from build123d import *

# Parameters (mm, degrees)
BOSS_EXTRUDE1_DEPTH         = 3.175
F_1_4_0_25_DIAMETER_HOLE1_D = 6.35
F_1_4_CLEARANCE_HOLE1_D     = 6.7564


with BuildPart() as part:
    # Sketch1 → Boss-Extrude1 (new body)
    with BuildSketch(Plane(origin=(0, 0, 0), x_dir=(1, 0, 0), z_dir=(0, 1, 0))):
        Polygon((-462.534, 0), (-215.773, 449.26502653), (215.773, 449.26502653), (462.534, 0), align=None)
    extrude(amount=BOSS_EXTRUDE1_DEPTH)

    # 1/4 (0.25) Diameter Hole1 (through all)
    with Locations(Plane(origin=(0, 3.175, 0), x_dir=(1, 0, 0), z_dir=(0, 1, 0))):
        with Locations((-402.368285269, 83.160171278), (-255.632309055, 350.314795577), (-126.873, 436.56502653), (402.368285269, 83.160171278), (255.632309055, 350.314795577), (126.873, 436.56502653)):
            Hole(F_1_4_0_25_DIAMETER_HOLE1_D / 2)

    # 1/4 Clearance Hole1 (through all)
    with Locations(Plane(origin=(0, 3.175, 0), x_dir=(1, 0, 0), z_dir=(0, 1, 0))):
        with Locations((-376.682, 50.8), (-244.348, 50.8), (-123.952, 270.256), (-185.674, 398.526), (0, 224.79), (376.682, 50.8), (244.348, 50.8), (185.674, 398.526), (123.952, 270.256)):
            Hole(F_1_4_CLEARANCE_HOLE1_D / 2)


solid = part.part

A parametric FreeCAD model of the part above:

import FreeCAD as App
import Part
import Sketcher
Q = App.Units.Quantity


def add_polygon(sketch, points):
    """Adds a closed chain of lines whose ends are joined by coincident constraints."""
    first, n = sketch.GeometryCount, len(points)
    for a, b in zip(points, points[1:] + points[:1]):
        sketch.addGeometry(Part.LineSegment(App.Vector(*a, 0), App.Vector(*b, 0)), False)
    for i in range(n):
        sketch.addConstraint(Sketcher.Constraint("Coincident", first + i, 2, first + (i + 1) % n, 1))

doc = App.newDocument("Part")
params = doc.addObject("Spreadsheet::Sheet", "Params")
for row, (alias, value) in enumerate([
    ("sketch1_width", "36.42 in"),
    ("sketch1_width2", "16.99 in"),
    ("sketch1_length", "20.18 in"),
    ("pad1_length", "0.125 in"),
    ("sketch2_diameter", "0.25 in"),
    ("hole_diameter", "0.25 in"),
    ("sketch3_diameter", "0.266 in"),
    ("hole2_diameter", "0.266 in"),
], start=1):
    params.set(f"A{row}", alias)
    params.set(f"B{row}", "=" + value)
    params.setAlias(f"B{row}", alias)

body = doc.addObject("PartDesign::Body", "Body")

sketch1 = body.newObject("Sketcher::SketchObject", "Sketch")
sketch1.AttachmentSupport = (doc.getObject("XZ_Plane"), [""])
sketch1.MapMode = "FlatFace"
add_polygon(sketch1, [(-215.773, -449.265027), (-462.534, 0), (462.534, 0), (215.773, -449.265027)])
sketch1.addConstraint([
    Sketcher.Constraint("Horizontal", 1),
    Sketcher.Constraint("Horizontal", 3),
    Sketcher.Constraint("Symmetric", 0, 2, 1, 2, -1, 1),
    Sketcher.Constraint("Equal", 0, 2),
    Sketcher.Constraint("DistanceX", 1, 1, 1, 2, Q("36.42 in")),
    Sketcher.Constraint("DistanceX", 3, 2, 3, 1, Q("16.99 in")),
    Sketcher.Constraint("Distance", 0, Q("20.18 in")),
])
sketch1.setExpression("Constraints[8]", "Params.sketch1_width")
sketch1.setExpression("Constraints[9]", "Params.sketch1_width2")
sketch1.setExpression("Constraints[10]", "Params.sketch1_length")
pad1 = body.newObject("PartDesign::Pad", "Pad")
pad1.Profile = sketch1
pad1.setExpression("Length", "Params.pad1_length")
pad1.Reversed = True

sketch2 = body.newObject("Sketcher::SketchObject", "Sketch001")
sketch2.AttachmentSupport = (doc.getObject("XZ_Plane"), [""])
sketch2.MapMode = "FlatFace"
sketch2.AttachmentOffset = App.Placement(App.Vector(0, 0, -0.125 * 25.4), App.Rotation())
sketch2.addGeometry([
    Part.Circle(App.Vector(-402.368285, -83.160171, 0), App.Vector(0, 0, 1), 3.175),
    Part.Circle(App.Vector(-255.632309, -350.314796, 0), App.Vector(0, 0, 1), 3.175),
    Part.Circle(App.Vector(-126.873, -436.565027, 0), App.Vector(0, 0, 1), 3.175),
    Part.Circle(App.Vector(402.368285, -83.160171, 0), App.Vector(0, 0, 1), 3.175),
    Part.Circle(App.Vector(255.632309, -350.314796, 0), App.Vector(0, 0, 1), 3.175),
    Part.Circle(App.Vector(126.873, -436.565027, 0), App.Vector(0, 0, 1), 3.175),
], False)
sketch2.addConstraint([
    Sketcher.Constraint("Equal", 0, 1),
    Sketcher.Constraint("Equal", 1, 2),
    Sketcher.Constraint("Equal", 2, 3),
    Sketcher.Constraint("Equal", 3, 4),
    Sketcher.Constraint("Equal", 4, 5),
    Sketcher.Constraint("Symmetric", 0, 3, 3, 3, -2),
    Sketcher.Constraint("Symmetric", 1, 3, 4, 3, -2),
    Sketcher.Constraint("Symmetric", 2, 3, 5, 3, -2),
    Sketcher.Constraint("Diameter", 0, Q("0.25 in")),
    Sketcher.Constraint("DistanceX", 2, 3, 5, 3, Q("9.99 in")),
    Sketcher.Constraint("DistanceY", 0, 3, -1, 1, Q("83.160171 mm")),
    Sketcher.Constraint("DistanceX", 1, 3, -1, 1, Q("255.632309 mm")),
    Sketcher.Constraint("DistanceY", 2, 3, 1, 3, Q("86.250231 mm")),
    Sketcher.Constraint("DistanceX", 0, 3, 3, 3, Q("804.736571 mm")),
    Sketcher.Constraint("DistanceY", 1, 3, -1, 1, Q("350.314796 mm")),
])
sketch2.setExpression("Constraints[8]", "Params.sketch2_diameter")
doc.recompute()
hole = body.newObject("PartDesign::Hole", "Hole")
hole.Profile = sketch2
hole.ThreadType = "None"
hole.setExpression("Diameter", "Params.hole_diameter")
hole.DepthType = "ThroughAll"
hole.Reversed = True

sketch3 = body.newObject("Sketcher::SketchObject", "Sketch002")
sketch3.AttachmentSupport = (doc.getObject("XZ_Plane"), [""])
sketch3.MapMode = "FlatFace"
sketch3.AttachmentOffset = App.Placement(App.Vector(0, 0, -0.125 * 25.4), App.Rotation())
sketch3.addGeometry([
    Part.Circle(App.Vector(-376.682, -50.8, 0), App.Vector(0, 0, 1), 3.3782),
    Part.Circle(App.Vector(-244.348, -50.8, 0), App.Vector(0, 0, 1), 3.3782),
    Part.Circle(App.Vector(-123.952, -270.256, 0), App.Vector(0, 0, 1), 3.3782),
    Part.Circle(App.Vector(-185.674, -398.526, 0), App.Vector(0, 0, 1), 3.3782),
    Part.Circle(App.Vector(0, -224.79, 0), App.Vector(0, 0, 1), 3.3782),
    Part.Circle(App.Vector(376.682, -50.8, 0), App.Vector(0, 0, 1), 3.3782),
    Part.Circle(App.Vector(244.348, -50.8, 0), App.Vector(0, 0, 1), 3.3782),
    Part.Circle(App.Vector(185.674, -398.526, 0), App.Vector(0, 0, 1), 3.3782),
    Part.Circle(App.Vector(123.952, -270.256, 0), App.Vector(0, 0, 1), 3.3782),
], False)
sketch3.addConstraint([
    Sketcher.Constraint("Equal", 0, 1),
    Sketcher.Constraint("Equal", 1, 2),
    Sketcher.Constraint("Equal", 2, 3),
    Sketcher.Constraint("Equal", 3, 4),
    Sketcher.Constraint("Equal", 4, 5),
    Sketcher.Constraint("Equal", 5, 6),
    Sketcher.Constraint("Equal", 6, 7),
    Sketcher.Constraint("Equal", 7, 8),
    Sketcher.Constraint("Symmetric", 0, 3, 5, 3, -2),
    Sketcher.Constraint("Symmetric", 1, 3, 6, 3, -2),
    Sketcher.Constraint("Symmetric", 3, 3, 7, 3, -2),
    Sketcher.Constraint("Symmetric", 2, 3, 8, 3, -2),
    Sketcher.Constraint("PointOnObject", 4, 3, -2),
    Sketcher.Constraint("Horizontal", 0, 3, 1, 3),
    Sketcher.Constraint("Diameter", 0, Q("0.266 in")),
    Sketcher.Constraint("DistanceY", 0, 3, -1, 1, Q("2 in")),
    Sketcher.Constraint("DistanceX", 2, 3, 6, 3, Q("14.5 in")),
    Sketcher.Constraint("DistanceX", 0, 3, -1, 1, Q("14.83 in")),
    Sketcher.Constraint("DistanceX", 1, 3, -1, 1, Q("9.62 in")),
    Sketcher.Constraint("DistanceY", 2, 3, -1, 1, Q("10.64 in")),
    Sketcher.Constraint("DistanceX", 3, 3, -1, 1, Q("7.31 in")),
    Sketcher.Constraint("DistanceY", 3, 3, -1, 1, Q("15.69 in")),
    Sketcher.Constraint("DistanceY", 4, 3, -1, 1, Q("8.85 in")),
])
sketch3.setExpression("Constraints[14]", "Params.sketch3_diameter")
doc.recompute()
hole2 = body.newObject("PartDesign::Hole", "Hole001")
hole2.Profile = sketch3
hole2.ThreadType = "None"
hole2.setExpression("Diameter", "Params.hole2_diameter")
hole2.DepthType = "ThroughAll"
hole2.Reversed = True

doc.recompute()
